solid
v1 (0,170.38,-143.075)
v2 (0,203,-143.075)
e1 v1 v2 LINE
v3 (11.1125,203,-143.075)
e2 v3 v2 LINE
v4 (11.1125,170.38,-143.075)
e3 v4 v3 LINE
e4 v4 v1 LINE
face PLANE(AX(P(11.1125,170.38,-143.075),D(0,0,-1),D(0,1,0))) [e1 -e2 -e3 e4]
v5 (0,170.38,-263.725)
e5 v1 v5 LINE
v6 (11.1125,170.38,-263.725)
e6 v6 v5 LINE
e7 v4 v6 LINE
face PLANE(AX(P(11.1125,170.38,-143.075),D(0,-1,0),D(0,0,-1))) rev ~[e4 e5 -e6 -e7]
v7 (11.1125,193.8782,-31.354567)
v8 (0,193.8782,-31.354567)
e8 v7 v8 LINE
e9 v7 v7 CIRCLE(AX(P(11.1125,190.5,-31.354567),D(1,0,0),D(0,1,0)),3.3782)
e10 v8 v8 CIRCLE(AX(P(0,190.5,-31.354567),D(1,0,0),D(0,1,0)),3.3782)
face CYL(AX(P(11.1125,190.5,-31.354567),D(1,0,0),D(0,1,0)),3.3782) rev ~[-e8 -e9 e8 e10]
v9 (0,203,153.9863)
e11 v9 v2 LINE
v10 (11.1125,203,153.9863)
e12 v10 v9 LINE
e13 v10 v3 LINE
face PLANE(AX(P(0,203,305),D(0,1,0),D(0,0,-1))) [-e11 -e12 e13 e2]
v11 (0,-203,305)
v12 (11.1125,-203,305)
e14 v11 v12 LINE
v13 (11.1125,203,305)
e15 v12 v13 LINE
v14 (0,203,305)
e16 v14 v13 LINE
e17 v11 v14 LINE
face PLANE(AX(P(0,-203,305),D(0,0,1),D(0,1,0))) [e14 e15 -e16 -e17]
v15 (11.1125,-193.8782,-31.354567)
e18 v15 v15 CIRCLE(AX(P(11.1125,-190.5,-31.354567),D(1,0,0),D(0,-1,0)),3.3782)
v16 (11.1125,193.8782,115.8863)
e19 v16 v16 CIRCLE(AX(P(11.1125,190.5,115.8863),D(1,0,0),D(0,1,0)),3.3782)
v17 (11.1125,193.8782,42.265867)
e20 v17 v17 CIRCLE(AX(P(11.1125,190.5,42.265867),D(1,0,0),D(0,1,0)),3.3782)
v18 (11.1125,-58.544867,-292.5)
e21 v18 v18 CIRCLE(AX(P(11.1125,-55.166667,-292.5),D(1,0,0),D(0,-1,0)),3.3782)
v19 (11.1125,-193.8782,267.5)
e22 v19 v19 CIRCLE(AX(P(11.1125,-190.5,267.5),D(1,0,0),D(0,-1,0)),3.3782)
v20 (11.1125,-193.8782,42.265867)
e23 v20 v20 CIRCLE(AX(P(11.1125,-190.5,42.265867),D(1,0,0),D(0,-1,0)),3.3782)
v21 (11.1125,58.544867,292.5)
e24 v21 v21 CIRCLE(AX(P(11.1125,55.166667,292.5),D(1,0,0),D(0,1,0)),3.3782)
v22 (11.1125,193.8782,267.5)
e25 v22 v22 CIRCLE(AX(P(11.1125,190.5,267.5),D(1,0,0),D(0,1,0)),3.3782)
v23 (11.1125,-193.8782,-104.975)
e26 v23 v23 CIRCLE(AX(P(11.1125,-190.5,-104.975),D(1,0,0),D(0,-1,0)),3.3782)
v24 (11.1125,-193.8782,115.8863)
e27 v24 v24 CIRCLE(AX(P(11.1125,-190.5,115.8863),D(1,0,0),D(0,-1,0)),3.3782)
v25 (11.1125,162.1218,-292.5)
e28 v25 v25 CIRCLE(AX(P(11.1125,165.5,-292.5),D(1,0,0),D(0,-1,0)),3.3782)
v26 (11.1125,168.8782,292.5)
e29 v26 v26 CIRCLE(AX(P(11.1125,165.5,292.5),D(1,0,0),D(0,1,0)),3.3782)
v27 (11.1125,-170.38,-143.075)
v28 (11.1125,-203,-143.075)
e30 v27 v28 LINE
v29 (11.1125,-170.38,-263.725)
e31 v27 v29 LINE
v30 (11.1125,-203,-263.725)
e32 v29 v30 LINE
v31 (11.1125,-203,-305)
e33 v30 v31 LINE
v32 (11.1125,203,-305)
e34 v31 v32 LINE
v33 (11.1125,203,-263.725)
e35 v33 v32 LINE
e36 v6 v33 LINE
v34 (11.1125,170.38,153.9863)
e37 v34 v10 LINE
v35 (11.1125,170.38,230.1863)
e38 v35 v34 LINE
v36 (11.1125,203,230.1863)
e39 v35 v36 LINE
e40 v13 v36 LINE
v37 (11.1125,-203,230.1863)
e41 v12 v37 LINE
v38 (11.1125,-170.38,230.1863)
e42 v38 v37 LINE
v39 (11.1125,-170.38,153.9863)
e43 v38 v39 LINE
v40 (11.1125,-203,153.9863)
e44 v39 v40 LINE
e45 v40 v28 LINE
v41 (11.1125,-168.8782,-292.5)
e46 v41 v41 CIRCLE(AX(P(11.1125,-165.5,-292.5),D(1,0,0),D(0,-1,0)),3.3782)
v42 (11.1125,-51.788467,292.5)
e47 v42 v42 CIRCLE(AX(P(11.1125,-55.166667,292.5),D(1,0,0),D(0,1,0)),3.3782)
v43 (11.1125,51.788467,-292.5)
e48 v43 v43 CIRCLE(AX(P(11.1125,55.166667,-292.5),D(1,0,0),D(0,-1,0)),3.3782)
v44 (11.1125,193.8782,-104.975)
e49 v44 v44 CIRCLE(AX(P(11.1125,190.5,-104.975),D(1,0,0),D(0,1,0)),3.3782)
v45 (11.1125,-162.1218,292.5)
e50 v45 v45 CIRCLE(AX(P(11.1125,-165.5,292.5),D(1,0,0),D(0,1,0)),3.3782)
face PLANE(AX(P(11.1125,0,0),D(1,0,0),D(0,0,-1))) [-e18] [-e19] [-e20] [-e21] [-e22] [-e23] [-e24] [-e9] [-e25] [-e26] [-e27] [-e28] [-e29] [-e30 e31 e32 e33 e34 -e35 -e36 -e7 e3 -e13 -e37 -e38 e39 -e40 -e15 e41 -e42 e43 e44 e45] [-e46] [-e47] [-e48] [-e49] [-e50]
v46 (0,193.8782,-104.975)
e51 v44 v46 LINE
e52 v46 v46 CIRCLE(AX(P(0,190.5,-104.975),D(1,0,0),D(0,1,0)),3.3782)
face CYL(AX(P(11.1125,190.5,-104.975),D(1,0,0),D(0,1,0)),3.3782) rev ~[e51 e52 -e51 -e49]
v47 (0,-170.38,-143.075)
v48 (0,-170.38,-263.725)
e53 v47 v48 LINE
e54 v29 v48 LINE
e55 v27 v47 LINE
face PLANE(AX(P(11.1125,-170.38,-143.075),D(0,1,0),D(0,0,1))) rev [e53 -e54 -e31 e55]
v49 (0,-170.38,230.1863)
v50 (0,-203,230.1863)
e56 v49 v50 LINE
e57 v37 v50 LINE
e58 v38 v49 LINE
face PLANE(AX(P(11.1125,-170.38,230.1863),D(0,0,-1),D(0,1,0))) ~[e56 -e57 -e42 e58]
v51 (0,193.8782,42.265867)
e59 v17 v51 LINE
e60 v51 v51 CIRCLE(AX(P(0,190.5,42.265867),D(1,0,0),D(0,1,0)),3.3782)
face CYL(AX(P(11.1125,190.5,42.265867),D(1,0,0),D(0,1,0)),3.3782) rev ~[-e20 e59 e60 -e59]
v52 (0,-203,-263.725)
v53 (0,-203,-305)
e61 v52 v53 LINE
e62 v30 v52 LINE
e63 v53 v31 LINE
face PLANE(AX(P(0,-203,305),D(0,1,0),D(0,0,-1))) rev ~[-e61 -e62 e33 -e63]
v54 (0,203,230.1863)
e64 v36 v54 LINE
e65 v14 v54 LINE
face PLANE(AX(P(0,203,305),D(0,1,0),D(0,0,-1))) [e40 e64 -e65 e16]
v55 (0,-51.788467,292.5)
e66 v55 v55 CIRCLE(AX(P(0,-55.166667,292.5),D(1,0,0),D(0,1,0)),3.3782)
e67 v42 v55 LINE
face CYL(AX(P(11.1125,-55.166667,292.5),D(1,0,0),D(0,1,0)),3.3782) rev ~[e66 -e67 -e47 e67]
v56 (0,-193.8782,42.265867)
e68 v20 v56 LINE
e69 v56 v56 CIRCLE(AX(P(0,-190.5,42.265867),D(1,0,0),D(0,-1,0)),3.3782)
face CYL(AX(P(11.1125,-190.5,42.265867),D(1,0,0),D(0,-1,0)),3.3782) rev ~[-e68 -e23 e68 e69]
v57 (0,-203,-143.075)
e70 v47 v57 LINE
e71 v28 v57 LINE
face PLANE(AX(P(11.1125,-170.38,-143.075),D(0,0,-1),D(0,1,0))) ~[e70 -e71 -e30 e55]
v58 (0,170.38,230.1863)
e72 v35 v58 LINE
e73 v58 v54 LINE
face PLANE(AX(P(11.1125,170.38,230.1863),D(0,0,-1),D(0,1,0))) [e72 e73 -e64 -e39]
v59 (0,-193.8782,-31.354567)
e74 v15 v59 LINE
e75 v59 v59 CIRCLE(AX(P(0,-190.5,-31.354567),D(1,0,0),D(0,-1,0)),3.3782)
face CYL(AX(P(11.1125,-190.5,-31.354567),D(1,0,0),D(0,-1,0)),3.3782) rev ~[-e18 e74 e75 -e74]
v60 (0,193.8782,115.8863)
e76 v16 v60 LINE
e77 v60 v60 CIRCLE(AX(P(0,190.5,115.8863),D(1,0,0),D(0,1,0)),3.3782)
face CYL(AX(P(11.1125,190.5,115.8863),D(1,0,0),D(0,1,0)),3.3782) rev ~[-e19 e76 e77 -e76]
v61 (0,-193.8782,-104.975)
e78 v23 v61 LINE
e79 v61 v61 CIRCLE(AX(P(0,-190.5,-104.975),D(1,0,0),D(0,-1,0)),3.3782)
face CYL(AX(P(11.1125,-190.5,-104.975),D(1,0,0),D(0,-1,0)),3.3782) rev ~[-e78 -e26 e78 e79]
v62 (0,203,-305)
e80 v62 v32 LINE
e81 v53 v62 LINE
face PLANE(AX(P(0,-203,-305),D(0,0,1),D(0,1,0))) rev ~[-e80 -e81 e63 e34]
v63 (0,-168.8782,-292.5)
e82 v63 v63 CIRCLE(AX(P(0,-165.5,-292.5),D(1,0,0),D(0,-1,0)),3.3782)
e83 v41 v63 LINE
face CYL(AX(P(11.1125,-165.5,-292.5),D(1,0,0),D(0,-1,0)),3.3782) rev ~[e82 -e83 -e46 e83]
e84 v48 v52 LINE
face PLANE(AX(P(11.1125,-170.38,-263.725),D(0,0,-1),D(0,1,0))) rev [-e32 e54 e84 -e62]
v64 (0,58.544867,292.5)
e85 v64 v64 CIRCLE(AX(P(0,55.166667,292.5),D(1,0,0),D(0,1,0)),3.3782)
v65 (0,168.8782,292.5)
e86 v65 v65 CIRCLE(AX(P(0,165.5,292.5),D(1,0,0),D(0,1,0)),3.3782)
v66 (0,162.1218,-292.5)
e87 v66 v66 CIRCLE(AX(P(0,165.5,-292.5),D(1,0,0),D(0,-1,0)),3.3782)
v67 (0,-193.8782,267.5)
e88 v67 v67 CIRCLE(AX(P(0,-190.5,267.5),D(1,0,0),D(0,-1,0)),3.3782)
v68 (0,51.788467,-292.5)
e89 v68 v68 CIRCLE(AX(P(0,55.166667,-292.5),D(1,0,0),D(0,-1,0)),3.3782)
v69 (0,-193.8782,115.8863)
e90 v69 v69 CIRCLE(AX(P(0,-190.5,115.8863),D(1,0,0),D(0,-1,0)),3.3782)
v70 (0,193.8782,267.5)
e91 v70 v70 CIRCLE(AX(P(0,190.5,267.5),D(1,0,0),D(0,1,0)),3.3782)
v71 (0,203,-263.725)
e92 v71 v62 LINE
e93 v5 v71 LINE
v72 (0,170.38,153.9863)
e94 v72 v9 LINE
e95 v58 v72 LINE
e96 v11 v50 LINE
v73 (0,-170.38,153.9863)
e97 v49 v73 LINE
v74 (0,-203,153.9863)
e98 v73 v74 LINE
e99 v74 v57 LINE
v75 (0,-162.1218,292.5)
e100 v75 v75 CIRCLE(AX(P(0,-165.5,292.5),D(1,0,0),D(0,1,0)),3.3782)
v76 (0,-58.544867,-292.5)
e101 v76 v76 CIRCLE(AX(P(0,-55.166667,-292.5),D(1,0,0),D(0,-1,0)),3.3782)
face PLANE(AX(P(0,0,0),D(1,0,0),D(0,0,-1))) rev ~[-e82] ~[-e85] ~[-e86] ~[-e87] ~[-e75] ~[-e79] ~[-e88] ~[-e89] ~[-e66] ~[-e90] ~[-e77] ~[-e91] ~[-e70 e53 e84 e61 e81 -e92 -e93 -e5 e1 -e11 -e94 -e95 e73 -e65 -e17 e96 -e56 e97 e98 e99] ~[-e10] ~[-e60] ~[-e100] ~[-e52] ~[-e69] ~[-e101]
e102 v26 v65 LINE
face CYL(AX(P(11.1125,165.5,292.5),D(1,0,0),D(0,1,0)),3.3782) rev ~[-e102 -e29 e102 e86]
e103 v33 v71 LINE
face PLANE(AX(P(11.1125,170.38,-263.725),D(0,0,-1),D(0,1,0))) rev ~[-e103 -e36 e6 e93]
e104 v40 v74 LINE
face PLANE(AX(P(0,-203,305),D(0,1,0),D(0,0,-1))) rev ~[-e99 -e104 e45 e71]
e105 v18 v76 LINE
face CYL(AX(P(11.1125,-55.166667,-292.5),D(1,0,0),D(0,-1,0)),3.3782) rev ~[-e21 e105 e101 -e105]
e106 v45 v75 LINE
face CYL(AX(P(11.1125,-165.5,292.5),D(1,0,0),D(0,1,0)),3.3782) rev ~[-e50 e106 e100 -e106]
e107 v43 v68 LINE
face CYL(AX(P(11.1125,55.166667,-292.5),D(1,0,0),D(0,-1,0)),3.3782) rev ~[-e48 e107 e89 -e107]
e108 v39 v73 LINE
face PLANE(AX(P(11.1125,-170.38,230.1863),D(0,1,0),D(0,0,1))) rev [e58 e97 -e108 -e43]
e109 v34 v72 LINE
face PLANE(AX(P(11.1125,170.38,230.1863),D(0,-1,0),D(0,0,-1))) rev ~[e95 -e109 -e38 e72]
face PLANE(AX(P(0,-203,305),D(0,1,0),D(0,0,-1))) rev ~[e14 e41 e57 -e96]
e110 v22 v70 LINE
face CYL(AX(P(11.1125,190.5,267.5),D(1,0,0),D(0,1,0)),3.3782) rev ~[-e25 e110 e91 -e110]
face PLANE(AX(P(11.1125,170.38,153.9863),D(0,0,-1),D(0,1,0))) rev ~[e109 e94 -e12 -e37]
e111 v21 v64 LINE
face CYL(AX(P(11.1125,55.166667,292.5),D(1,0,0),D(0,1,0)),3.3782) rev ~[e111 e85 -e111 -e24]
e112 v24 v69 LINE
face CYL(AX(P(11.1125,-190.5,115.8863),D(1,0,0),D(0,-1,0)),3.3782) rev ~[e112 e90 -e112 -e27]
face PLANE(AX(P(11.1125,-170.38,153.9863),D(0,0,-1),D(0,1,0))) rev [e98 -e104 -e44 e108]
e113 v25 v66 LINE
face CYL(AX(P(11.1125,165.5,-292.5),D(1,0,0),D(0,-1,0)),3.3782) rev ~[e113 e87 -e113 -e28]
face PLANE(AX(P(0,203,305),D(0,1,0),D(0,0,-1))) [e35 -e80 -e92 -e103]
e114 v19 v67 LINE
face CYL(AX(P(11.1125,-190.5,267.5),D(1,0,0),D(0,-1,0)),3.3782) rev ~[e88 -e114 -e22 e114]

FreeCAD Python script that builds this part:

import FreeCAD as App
import Part
import Sketcher

V = App.Vector
Q = App.Units.Quantity

doc = App.newDocument("Part")
body = doc.addObject("PartDesign::Body", "Body")

sketch1 = body.newObject("Sketcher::SketchObject", "Sketch")
sketch1.AttachmentSupport = (doc.getObject("YZ_Plane"), [""])
sketch1.MapMode = "FlatFace"
sketch1.addGeometry([
    Part.LineSegment(V(203, 305, 0), V(-203, 305, 0)),
    Part.LineSegment(V(-203, 305, 0), V(-203, -305, 0)),
    Part.LineSegment(V(-203, -305, 0), V(203, -305, 0)),
    Part.LineSegment(V(203, -305, 0), V(203, 305, 0)),
], False)
sketch1.addConstraint([
    Sketcher.Constraint("Coincident", 0, 2, 1, 1),
    Sketcher.Constraint("Coincident", 1, 2, 2, 1),
    Sketcher.Constraint("Coincident", 2, 2, 3, 1),
    Sketcher.Constraint("Coincident", 3, 2, 0, 1),
    Sketcher.Constraint("Horizontal", 0),
    Sketcher.Constraint("Vertical", 1),
    Sketcher.Constraint("Horizontal", 2),
    Sketcher.Constraint("Vertical", 3),
    Sketcher.Constraint("Symmetric", 0, 2, 2, 2, -1, 1),
    Sketcher.Constraint("DistanceX", 0, 2, 0, 1, Q("406 mm")),
    Sketcher.Constraint("DistanceY", 1, 2, 1, 1, Q("610 mm")),
])
pad1 = body.newObject("PartDesign::Pad", "Pad")
pad1.Profile = sketch1
pad1.Length = Q("0.4375 in")

sketch2 = body.newObject("Sketcher::SketchObject", "Sketch001")
sketch2.AttachmentSupport = (doc.getObject("YZ_Plane"), [""])
sketch2.MapMode = "FlatFace"
sketch2.AttachmentOffset = App.Placement(V(0, 0, 0.4375 * 25.4), App.Rotation())
sketch2.addGeometry([
    Part.LineSegment(V(203, -143, 0), V(170, -143, 0)),
    Part.LineSegment(V(170, -143, 0), V(170, -264, 0)),
    Part.LineSegment(V(170, -264, 0), V(203, -264, 0)),
    Part.LineSegment(V(203, -264, 0), V(203, -143, 0)),
], False)
sketch2.addConstraint([
    Sketcher.Constraint("Coincident", 0, 2, 1, 1),
    Sketcher.Constraint("Coincident", 1, 2, 2, 1),
    Sketcher.Constraint("Coincident", 2, 2, 3, 1),
    Sketcher.Constraint("Coincident", 3, 2, 0, 1),
    Sketcher.Constraint("Horizontal", 0),
    Sketcher.Constraint("Vertical", 1),
    Sketcher.Constraint("Horizontal", 2),
    Sketcher.Constraint("Vertical", 3),
    Sketcher.Constraint("DistanceY", 1, 2, 1, 1, Q("4.75 in")),
    Sketcher.Constraint("DistanceX", 0, 2, 0, 1, Q("32.62 mm")),
    Sketcher.Constraint("DistanceX", -1, 1, 0, 2, Q("170.38 mm")),
    Sketcher.Constraint("DistanceY", 0, 2, -1, 1, Q("143.075 mm")),
])
pocket1 = body.newObject("PartDesign::Pocket", "Pocket")
pocket1.Profile = sketch2
pocket1.Type = "ThroughAll"

sketch3 = body.newObject("Sketcher::SketchObject", "Sketch002")
sketch3.AttachmentSupport = (doc.getObject("YZ_Plane"), [""])
sketch3.MapMode = "FlatFace"
sketch3.AttachmentOffset = App.Placement(V(0, 0, 0.4375 * 25.4), App.Rotation())
sketch3.addGeometry([
    Part.LineSegment(V(203, 230, 0), V(170, 230, 0)),
    Part.LineSegment(V(170, 230, 0), V(170, 154, 0)),
    Part.LineSegment(V(170, 154, 0), V(203, 154, 0)),
    Part.LineSegment(V(203, 154, 0), V(203, 230, 0)),
], False)
sketch3.addConstraint([
    Sketcher.Constraint("Coincident", 0, 2, 1, 1),
    Sketcher.Constraint("Coincident", 1, 2, 2, 1),
    Sketcher.Constraint("Coincident", 2, 2, 3, 1),
    Sketcher.Constraint("Coincident", 3, 2, 0, 1),
    Sketcher.Constraint("Horizontal", 0),
    Sketcher.Constraint("Vertical", 1),
    Sketcher.Constraint("Horizontal", 2),
    Sketcher.Constraint("Vertical", 3),
    Sketcher.Constraint("DistanceY", 1, 2, 1, 1, Q("3 in")),
    Sketcher.Constraint("DistanceX", 0, 2, 0, 1, Q("32.62 mm")),
    Sketcher.Constraint("DistanceX", -1, 1, 0, 2, Q("170.38 mm")),
    Sketcher.Constraint("DistanceY", -1, 1, 0, 2, Q("230.1863 mm")),
])
pocket2 = body.newObject("PartDesign::Pocket", "Pocket001")
pocket2.Profile = sketch3
pocket2.Type = "ThroughAll"
doc.recompute()

mirrored = body.newObject("PartDesign::Mirrored", "Mirrored")
mirrored.Originals = [pocket1, pocket2]
mirrored.MirrorPlane = (doc.getObject("XZ_Plane"), [""])
body.Tip = mirrored

sketch4 = body.newObject("Sketcher::SketchObject", "Sketch003")
sketch4.AttachmentSupport = (doc.getObject("YZ_Plane"), [""])
sketch4.MapMode = "FlatFace"
sketch4.AttachmentOffset = App.Placement(V(0, 0, 0.4375 * 25.4), App.Rotation())
sketch4.addGeometry([
    Part.Circle(V(165.5, 292.5, 0), V(0, 0, 1), 3.4),
    Part.Circle(V(55.2, 292.5, 0), V(0, 0, 1), 3.4),
    Part.Circle(V(-55.2, 292.5, 0), V(0, 0, 1), 3.4),
    Part.Circle(V(-165.5, 292.5, 0), V(0, 0, 1), 3.4),
    Part.Circle(V(-165.5, -292.5, 0), V(0, 0, 1), 3.4),
    Part.Circle(V(-55.2, -292.5, 0), V(0, 0, 1), 3.4),
    Part.Circle(V(165.5, -292.5, 0), V(0, 0, 1), 3.4),
    Part.Circle(V(55.2, -292.5, 0), V(0, 0, 1), 3.4),
    Part.Circle(V(190.5, 267.5, 0), V(0, 0, 1), 3.4),
    Part.Circle(V(190.5, 115.9, 0), V(0, 0, 1), 3.4),
    Part.Circle(V(190.5, 42.3, 0), V(0, 0, 1), 3.4),
    Part.Circle(V(190.5, -31.4, 0), V(0, 0, 1), 3.4),
    Part.Circle(V(190.5, -105, 0), V(0, 0, 1), 3.4),
    Part.Circle(V(-190.5, -105, 0), V(0, 0, 1), 3.4),
    Part.Circle(V(-190.5, -31.4, 0), V(0, 0, 1), 3.4),
    Part.Circle(V(-190.5, 42.3, 0), V(0, 0, 1), 3.4),
    Part.Circle(V(-190.5, 115.9, 0), V(0, 0, 1), 3.4),
    Part.Circle(V(-190.5, 267.5, 0), V(0, 0, 1), 3.4),
], False)
sketch4.addConstraint([
    Sketcher.Constraint("Equal", 0, 1),
    Sketcher.Constraint("Equal", 1, 2),
    Sketcher.Constraint("Equal", 2, 3),
    Sketcher.Constraint("Equal", 3, 4),
    Sketcher.Constraint("Equal", 4, 5),
    Sketcher.Constraint("Equal", 5, 6),
    Sketcher.Constraint("Equal", 6, 7),
    Sketcher.Constraint("Equal", 7, 8),
    Sketcher.Constraint("Equal", 8, 9),
    Sketcher.Constraint("Equal", 9, 10),
    Sketcher.Constraint("Equal", 10, 11),
    Sketcher.Constraint("Equal", 11, 12),
    Sketcher.Constraint("Equal", 12, 13),
    Sketcher.Constraint("Equal", 13, 14),
    Sketcher.Constraint("Equal", 14, 15),
    Sketcher.Constraint("Equal", 15, 16),
    Sketcher.Constraint("Equal", 16, 17),
    Sketcher.Constraint("Symmetric", 0, 3, 4, 3, -1, 1),
    Sketcher.Constraint("Symmetric", 1, 3, 5, 3, -1, 1),
    Sketcher.Constraint("Symmetric", 3, 3, 6, 3, -1, 1),
    Sketcher.Constraint("Symmetric", 2, 3, 7, 3, -1, 1),
    Sketcher.Constraint("Symmetric", 1, 3, 2, 3, -2),
    Sketcher.Constraint("Symmetric", 0, 3, 3, 3, -2),
    Sketcher.Constraint("Symmetric", 12, 3, 13, 3, -2),
    Sketcher.Constraint("Symmetric", 11, 3, 14, 3, -2),
    Sketcher.Constraint("Symmetric", 10, 3, 15, 3, -2),
    Sketcher.Constraint("Symmetric", 9, 3, 16, 3, -2),
    Sketcher.Constraint("Symmetric", 8, 3, 17, 3, -2),
    Sketcher.Constraint("Horizontal", 0, 3, 1, 3),
    Sketcher.Constraint("Vertical", 8, 3, 9, 3),
    Sketcher.Constraint("Vertical", 9, 3, 10, 3),
    Sketcher.Constraint("Vertical", 10, 3, 11, 3),
    Sketcher.Constraint("Vertical", 11, 3, 12, 3),
    Sketcher.Constraint("Diameter", 0, Q("0.266 in")),
    Sketcher.Constraint("DistanceX", 13, 3, 12, 3, Q("15 in")),
    Sketcher.Constraint("DistanceX", -1, 1, 0, 3, Q("165.5 mm")),
    Sketcher.Constraint("DistanceY", -1, 1, 0, 3, Q("292.5 mm")),
    Sketcher.Constraint("DistanceY", -1, 1, 8, 3, Q("267.5 mm")),
    Sketcher.Constraint("DistanceY", -1, 1, 9, 3, Q("115.8863 mm")),
    Sketcher.Constraint("DistanceY", 12, 3, -1, 1, Q("104.975 mm")),
    Sketcher.Constraint("DistanceX", -1, 1, 1, 3, Q("55.166667 mm")),
    Sketcher.Constraint("DistanceY", -1, 1, 10, 3, Q("42.265867 mm")),
    Sketcher.Constraint("DistanceY", 11, 3, -1, 1, Q("31.354567 mm")),
])
pocket3 = body.newObject("PartDesign::Pocket", "Pocket002")
pocket3.Profile = sketch4
pocket3.Type = "ThroughAll"

doc.recompute()
